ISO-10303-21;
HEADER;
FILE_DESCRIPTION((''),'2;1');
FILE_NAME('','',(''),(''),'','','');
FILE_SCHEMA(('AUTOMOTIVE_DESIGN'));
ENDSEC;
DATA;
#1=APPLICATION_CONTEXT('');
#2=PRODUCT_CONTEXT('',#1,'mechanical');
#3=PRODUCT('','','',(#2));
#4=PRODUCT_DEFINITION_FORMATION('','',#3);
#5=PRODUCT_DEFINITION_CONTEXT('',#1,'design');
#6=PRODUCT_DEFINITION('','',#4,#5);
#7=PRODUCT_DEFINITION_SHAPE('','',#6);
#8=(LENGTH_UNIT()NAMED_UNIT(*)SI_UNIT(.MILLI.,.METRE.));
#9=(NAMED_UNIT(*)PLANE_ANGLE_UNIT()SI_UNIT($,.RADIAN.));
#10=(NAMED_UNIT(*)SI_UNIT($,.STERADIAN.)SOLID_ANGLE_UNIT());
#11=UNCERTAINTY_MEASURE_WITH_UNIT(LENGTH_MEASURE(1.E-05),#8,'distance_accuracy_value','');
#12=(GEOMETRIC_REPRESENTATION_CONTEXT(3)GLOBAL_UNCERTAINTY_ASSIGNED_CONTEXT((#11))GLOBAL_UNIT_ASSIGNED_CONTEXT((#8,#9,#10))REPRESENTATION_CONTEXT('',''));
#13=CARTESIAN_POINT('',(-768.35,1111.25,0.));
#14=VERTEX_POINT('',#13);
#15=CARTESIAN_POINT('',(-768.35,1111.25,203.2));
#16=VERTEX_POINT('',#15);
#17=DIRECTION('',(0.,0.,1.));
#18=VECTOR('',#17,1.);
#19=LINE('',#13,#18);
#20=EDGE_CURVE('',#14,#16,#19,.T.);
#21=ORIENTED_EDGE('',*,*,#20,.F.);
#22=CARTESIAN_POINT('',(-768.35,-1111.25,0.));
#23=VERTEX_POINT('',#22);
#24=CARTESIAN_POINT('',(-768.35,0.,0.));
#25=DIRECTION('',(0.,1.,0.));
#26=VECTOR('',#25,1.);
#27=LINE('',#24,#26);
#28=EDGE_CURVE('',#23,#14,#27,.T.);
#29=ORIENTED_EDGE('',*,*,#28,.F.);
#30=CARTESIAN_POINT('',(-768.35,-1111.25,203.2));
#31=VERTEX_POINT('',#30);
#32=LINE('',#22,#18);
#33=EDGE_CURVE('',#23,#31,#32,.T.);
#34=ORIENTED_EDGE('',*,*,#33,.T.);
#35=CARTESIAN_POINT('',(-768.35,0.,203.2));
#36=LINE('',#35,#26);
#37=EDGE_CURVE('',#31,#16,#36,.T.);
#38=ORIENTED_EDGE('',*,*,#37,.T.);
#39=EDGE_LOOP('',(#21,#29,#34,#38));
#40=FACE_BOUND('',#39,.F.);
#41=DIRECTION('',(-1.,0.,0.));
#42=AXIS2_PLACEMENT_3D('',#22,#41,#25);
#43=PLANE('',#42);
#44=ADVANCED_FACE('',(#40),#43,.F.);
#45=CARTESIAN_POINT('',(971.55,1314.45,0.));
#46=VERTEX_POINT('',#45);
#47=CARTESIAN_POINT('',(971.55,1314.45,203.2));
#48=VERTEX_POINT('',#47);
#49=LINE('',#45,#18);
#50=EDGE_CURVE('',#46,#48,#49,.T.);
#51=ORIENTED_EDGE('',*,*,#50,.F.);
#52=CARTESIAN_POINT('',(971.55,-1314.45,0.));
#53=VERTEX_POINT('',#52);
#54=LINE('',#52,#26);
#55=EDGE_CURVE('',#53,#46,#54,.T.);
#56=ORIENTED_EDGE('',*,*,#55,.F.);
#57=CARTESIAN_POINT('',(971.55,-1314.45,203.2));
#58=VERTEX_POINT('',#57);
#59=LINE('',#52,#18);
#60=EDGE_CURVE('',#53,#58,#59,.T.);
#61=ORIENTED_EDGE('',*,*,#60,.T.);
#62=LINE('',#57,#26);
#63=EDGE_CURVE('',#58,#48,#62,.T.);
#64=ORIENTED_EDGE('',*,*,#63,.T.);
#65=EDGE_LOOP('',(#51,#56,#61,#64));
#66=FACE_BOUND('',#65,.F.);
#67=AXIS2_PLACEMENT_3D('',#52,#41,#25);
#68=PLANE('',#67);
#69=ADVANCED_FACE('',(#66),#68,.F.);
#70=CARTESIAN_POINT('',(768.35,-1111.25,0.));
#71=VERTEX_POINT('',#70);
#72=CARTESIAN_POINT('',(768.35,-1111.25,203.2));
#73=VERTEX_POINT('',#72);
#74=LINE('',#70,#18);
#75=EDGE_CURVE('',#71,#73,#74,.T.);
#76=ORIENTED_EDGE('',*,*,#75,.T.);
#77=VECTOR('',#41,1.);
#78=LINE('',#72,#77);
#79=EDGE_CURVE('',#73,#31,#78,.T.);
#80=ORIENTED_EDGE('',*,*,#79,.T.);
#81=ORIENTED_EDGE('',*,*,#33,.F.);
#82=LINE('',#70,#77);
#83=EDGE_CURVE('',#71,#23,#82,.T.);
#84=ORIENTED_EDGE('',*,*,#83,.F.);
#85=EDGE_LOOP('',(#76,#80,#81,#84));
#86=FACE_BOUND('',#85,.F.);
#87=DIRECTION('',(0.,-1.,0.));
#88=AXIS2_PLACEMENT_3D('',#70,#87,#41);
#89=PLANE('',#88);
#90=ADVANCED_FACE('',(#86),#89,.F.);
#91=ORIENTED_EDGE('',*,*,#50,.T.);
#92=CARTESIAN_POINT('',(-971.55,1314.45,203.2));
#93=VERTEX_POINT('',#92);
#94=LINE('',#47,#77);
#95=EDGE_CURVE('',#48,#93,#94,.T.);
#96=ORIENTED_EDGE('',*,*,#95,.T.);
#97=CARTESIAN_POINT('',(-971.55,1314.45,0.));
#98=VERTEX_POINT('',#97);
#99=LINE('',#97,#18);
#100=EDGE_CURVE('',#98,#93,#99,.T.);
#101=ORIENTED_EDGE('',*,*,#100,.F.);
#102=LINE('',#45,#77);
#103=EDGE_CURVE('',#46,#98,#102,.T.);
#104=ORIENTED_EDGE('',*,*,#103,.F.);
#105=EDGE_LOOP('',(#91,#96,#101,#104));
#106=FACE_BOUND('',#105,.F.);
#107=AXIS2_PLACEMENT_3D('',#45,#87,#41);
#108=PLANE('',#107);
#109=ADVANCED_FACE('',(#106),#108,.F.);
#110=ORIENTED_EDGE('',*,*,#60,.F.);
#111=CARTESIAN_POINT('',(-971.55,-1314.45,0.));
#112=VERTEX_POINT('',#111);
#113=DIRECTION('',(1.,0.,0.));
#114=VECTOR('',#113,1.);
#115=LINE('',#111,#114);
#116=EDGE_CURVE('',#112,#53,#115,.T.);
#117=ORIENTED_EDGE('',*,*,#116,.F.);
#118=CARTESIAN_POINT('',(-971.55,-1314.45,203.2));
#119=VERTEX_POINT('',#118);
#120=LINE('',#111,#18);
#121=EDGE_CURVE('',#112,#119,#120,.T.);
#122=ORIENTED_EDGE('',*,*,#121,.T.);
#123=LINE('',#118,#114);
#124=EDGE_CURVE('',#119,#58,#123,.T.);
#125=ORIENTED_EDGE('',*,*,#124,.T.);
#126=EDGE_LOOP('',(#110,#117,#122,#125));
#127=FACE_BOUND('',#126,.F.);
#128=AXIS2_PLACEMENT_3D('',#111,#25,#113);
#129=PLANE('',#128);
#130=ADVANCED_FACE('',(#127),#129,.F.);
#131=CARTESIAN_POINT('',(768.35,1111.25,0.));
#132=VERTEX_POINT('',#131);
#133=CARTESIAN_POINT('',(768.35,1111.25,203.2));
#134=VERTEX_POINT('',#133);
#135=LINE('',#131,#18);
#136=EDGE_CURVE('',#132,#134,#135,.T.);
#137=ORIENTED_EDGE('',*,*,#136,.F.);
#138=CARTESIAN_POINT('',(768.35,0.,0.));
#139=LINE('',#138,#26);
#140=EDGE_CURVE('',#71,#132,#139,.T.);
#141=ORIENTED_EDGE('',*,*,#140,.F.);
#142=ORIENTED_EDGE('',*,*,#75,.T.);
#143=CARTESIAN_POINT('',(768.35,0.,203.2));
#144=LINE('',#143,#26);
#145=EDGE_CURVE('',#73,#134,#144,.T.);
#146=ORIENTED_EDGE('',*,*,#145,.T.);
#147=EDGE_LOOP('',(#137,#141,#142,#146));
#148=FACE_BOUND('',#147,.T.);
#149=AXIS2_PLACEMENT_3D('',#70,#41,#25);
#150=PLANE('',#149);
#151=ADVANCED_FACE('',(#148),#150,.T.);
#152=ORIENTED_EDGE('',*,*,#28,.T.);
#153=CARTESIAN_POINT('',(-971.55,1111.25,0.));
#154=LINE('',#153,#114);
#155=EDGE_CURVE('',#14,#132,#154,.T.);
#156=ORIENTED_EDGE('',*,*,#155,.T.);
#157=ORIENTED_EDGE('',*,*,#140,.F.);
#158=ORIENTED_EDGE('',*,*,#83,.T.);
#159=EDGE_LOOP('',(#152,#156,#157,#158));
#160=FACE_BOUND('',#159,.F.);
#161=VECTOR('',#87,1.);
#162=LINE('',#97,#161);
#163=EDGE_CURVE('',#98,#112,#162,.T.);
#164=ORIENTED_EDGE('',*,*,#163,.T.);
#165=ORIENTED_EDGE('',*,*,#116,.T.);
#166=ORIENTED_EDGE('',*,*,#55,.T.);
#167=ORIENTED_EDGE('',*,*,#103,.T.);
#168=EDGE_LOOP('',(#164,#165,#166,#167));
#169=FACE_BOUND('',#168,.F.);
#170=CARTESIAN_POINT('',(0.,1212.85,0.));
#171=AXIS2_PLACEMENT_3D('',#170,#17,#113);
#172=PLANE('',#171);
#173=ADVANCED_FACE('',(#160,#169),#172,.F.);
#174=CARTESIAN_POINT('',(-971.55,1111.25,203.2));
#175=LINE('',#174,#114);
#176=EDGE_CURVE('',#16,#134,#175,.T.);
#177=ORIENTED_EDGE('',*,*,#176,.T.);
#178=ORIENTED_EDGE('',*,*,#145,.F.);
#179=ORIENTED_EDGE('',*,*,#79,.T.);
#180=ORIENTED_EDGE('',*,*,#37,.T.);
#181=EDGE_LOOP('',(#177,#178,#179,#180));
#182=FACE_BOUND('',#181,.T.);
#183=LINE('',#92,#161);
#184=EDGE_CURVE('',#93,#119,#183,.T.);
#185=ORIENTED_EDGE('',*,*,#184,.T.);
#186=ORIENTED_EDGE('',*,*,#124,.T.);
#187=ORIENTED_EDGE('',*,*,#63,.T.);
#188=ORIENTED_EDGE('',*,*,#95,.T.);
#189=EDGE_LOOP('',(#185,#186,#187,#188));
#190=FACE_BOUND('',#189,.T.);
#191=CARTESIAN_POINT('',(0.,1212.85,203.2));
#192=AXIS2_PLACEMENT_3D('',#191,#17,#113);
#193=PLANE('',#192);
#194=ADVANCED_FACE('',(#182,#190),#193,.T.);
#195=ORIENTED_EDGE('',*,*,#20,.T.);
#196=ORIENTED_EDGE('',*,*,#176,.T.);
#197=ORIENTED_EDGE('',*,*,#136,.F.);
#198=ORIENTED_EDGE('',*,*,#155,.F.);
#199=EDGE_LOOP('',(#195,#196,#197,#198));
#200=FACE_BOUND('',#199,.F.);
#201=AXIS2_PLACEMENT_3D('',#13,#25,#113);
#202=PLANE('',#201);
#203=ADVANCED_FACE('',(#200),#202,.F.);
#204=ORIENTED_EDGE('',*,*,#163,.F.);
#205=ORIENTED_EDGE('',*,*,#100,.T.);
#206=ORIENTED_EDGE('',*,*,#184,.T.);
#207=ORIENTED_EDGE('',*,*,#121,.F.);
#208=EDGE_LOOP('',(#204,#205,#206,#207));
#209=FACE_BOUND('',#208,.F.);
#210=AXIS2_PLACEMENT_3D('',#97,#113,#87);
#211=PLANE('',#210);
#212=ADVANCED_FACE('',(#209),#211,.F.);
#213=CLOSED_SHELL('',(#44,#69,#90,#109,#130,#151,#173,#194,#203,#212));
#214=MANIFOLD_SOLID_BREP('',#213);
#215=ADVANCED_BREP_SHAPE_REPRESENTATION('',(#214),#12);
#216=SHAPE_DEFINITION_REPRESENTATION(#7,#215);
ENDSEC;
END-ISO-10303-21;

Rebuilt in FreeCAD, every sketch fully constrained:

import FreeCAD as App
import Part
import Sketcher
from FreeCAD import Vector
Q = App.Units.Quantity


def add_polygon(sketch, points):
    """Adds a closed chain of lines whose ends are joined by coincident constraints."""
    first, n = sketch.GeometryCount, len(points)
    for a, b in zip(points, points[1:] + points[:1]):
        sketch.addGeometry(Part.LineSegment(App.Vector(*a, 0), App.Vector(*b, 0)), False)
    for i in range(n):
        sketch.addConstraint(Sketcher.Constraint("Coincident", first + i, 2, first + (i + 1) % n, 1))

doc = App.newDocument("Part")
params = doc.addObject("Spreadsheet::Sheet", "Params")
for row, (alias, value) in enumerate([
    ("sketch1_width", "76.5 in"),
    ("sketch1_width2", "60.5 in"),
    ("sketch1_height", "103.5 in"),
    ("sketch1_height2", "87.5 in"),
    ("pad1_length", "8 in"),
], start=1):
    params.set(f"A{row}", alias)
    params.set(f"B{row}", "=" + value)
    params.setAlias(f"B{row}", alias)

body = doc.addObject("PartDesign::Body", "Body")

# Sketch on XY plane
sketch1 = doc.addObject("Sketcher::SketchObject", "Sketch")
body.addObject(sketch1)
sketch1.AttachmentSupport = (doc.XY_Plane, [""])
sketch1.MapMode = "FlatFace"
add_polygon(sketch1, [(971.55, 1314.45), (-971.55, 1314.45), (-971.55, -1314.45), (971.55, -1314.45)])  # lines 0-3
add_polygon(sketch1, [(-768.35, 1111.25), (768.35, 1111.25), (768.35, -1111.25), (-768.35, -1111.25)])  # lines 4-7
sketch1.addConstraint([
    Sketcher.Constraint("Horizontal", 0),
    Sketcher.Constraint("Vertical", 1),
    Sketcher.Constraint("Horizontal", 2),
    Sketcher.Constraint("Vertical", 3),
    Sketcher.Constraint("Horizontal", 4),
    Sketcher.Constraint("Vertical", 5),
    Sketcher.Constraint("Horizontal", 6),
    Sketcher.Constraint("Vertical", 7),
    Sketcher.Constraint("Symmetric", 0, 2, 2, 2, -1, 1),
    Sketcher.Constraint("Symmetric", 4, 2, 6, 2, -1, 1),
    Sketcher.Constraint("DistanceX", 0, 2, 0, 1, Q("76.5 in")),
    Sketcher.Constraint("DistanceX", 4, 1, 4, 2, Q("60.5 in")),
    Sketcher.Constraint("DistanceY", 1, 2, 1, 1, Q("103.5 in")),
    Sketcher.Constraint("DistanceY", 5, 2, 5, 1, Q("87.5 in")),
])
sketch1.setExpression("Constraints[18]", "Params.sketch1_width")
sketch1.setExpression("Constraints[19]", "Params.sketch1_width2")
sketch1.setExpression("Constraints[20]", "Params.sketch1_height")
sketch1.setExpression("Constraints[21]", "Params.sketch1_height2")
pad1 = doc.addObject("PartDesign::Pad", "Pad")
body.addObject(pad1)
pad1.Profile = sketch1
pad1.setExpression("Length", "Params.pad1_length")

doc.recompute()
